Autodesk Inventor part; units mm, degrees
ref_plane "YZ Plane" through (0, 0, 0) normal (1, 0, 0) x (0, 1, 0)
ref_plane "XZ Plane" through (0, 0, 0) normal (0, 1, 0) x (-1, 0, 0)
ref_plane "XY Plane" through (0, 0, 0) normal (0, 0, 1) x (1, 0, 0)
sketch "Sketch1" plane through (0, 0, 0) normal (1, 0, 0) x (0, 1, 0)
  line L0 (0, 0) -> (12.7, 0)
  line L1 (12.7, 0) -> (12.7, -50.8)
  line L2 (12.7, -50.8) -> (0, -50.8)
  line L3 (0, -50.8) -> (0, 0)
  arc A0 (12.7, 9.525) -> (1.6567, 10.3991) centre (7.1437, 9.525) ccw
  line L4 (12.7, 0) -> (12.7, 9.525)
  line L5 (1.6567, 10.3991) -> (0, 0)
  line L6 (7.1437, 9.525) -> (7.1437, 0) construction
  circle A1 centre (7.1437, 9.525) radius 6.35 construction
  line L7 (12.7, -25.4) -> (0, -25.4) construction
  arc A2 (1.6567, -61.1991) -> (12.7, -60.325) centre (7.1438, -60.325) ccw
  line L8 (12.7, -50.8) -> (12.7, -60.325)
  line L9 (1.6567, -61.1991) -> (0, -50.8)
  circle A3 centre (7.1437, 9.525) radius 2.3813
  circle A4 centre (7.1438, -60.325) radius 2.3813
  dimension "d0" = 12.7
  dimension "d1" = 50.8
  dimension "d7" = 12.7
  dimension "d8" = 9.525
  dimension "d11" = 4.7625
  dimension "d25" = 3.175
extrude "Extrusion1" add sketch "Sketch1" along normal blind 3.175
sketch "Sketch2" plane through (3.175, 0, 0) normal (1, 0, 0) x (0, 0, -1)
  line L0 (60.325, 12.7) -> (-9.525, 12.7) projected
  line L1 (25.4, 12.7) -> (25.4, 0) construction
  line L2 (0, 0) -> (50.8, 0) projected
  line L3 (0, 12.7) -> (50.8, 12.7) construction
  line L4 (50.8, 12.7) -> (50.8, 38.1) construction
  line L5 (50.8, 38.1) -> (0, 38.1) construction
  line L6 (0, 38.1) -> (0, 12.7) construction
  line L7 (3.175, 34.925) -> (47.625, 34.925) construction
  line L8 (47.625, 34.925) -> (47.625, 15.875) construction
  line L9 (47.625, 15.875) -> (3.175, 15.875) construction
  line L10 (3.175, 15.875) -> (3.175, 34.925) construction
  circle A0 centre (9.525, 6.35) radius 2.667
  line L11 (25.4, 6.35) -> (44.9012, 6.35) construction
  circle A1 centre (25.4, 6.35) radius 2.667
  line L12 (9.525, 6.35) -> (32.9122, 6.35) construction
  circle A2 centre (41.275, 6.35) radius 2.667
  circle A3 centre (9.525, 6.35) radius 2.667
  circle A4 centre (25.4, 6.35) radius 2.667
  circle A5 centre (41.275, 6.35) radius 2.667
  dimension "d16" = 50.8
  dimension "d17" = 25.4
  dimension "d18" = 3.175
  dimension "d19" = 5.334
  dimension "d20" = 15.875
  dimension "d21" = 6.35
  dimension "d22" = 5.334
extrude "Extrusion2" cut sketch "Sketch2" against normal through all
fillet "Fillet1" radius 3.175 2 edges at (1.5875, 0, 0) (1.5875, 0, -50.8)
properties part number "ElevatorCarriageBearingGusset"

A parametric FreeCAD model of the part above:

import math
import FreeCAD as App
import Part
import Sketcher

V = App.Vector
Q = App.Units.Quantity


def edges_at(feature, points):
    """Names of the edges that pass closest to the given points."""
    edges = feature.Shape.Edges
    near = lambda p: min(range(len(edges)), key=lambda i: edges[i].distToShape(Part.Vertex(*p))[0])
    return sorted({f"Edge{near(p) + 1}" for p in points})

doc = App.newDocument("Part")
body = doc.addObject("PartDesign::Body", "Body")

# Sketch on YZ plane
sketch1 = doc.addObject("Sketcher::SketchObject", "Sketch")
body.addObject(sketch1)
sketch1.AttachmentSupport = (doc.YZ_Plane, [""])
sketch1.MapMode = "FlatFace"
sketch1.addGeometry(Part.LineSegment(V(1.6567, 10.3991, 0), V(0, 0, 0)), False)
sketch1.addGeometry(Part.LineSegment(V(0, 0, 0), V(0, -50.8, 0)), False)
sketch1.addGeometry(Part.LineSegment(V(0, -50.8, 0), V(1.6567, -61.1991, 0)), False)
sketch1.addGeometry(Part.ArcOfCircle(Part.Circle(V(7.1438, -60.325, 0), V(0, 0, 1), 5.556286), math.radians(-170.948783), math.radians(0)), False)
sketch1.addGeometry(Part.LineSegment(V(12.7, -60.325, 0), V(12.7, 9.525, 0)), False)
sketch1.addGeometry(Part.ArcOfCircle(Part.Circle(V(7.1437, 9.525, 0), V(0, 0, 1), 5.5563), math.radians(0), math.radians(170.94862)), False)
sketch1.addGeometry(Part.Circle(V(7.1437, 9.525, 0), V(0, 0, 1), 2.3813), False)
sketch1.addGeometry(Part.Circle(V(7.1438, -60.325, 0), V(0, 0, 1), 2.3813), False)
sketch1.addConstraint(Sketcher.Constraint("Coincident", 0, 2, 1, 1))
sketch1.addConstraint(Sketcher.Constraint("Coincident", 1, 2, 2, 1))
sketch1.addConstraint(Sketcher.Constraint("Tangent", 2, 2, 3, 1))
sketch1.addConstraint(Sketcher.Constraint("Tangent", 3, 2, 4, 1))
sketch1.addConstraint(Sketcher.Constraint("Tangent", 4, 2, 5, 1))
sketch1.addConstraint(Sketcher.Constraint("Tangent", 5, 2, 0, 1))
sketch1.addConstraint(Sketcher.Constraint("Vertical", 1))
sketch1.addConstraint(Sketcher.Constraint("Vertical", 4))
sketch1.addConstraint(Sketcher.Constraint("Coincident", 0, 2, -1, 1))
sketch1.addConstraint(Sketcher.Constraint("Coincident", 6, 3, 5, 3))
sketch1.addConstraint(Sketcher.Constraint("Coincident", 7, 3, 3, 3))
sketch1.addConstraint(Sketcher.Constraint("Equal", 3, 5))
sketch1.addConstraint(Sketcher.Constraint("Equal", 6, 7))
sketch1.addConstraint(Sketcher.Constraint("Vertical", 2, 2, 5, 2))
sketch1.addConstraint(Sketcher.Constraint("DistanceY", 1, 2, 1, 1, Q("2 in")))
sketch1.addConstraint(Sketcher.Constraint("Diameter", 6, Q("0.1875 in")))
sketch1.addConstraint(Sketcher.Constraint("DistanceX", -1, 1, 3, 2, Q("0.5 in")))
sketch1.addConstraint(Sketcher.Constraint("DistanceY", -1, 1, 5, 3, Q("0.375 in")))
sketch1.addConstraint(Sketcher.Constraint("Radius", 3, Q("0.218752 in")))
pad1 = doc.addObject("PartDesign::Pad", "Pad")
body.addObject(pad1)
pad1.Profile = sketch1
pad1.Length = Q("0.125 in")

# Sketch on YZ plane
sketch2 = doc.addObject("Sketcher::SketchObject", "Sketch001")
body.addObject(sketch2)
sketch2.AttachmentSupport = (doc.YZ_Plane, [""])
sketch2.MapMode = "FlatFace"
sketch2.AttachmentOffset = App.Placement(V(0, 0, 0.125 * 25.4), App.Rotation())
sketch2.addGeometry(Part.Circle(V(6.35, -9.525, 0), V(0, 0, 1), 2.667), False)
sketch2.addGeometry(Part.Circle(V(6.35, -25.4, 0), V(0, 0, 1), 2.667), False)
sketch2.addGeometry(Part.Circle(V(6.35, -41.275, 0), V(0, 0, 1), 2.667), False)
sketch2.addConstraint(Sketcher.Constraint("Equal", 0, 1))
sketch2.addConstraint(Sketcher.Constraint("Equal", 1, 2))
sketch2.addConstraint(Sketcher.Constraint("Vertical", 0, 3, 1, 3))
sketch2.addConstraint(Sketcher.Constraint("Vertical", 1, 3, 2, 3))
sketch2.addConstraint(Sketcher.Constraint("Diameter", 0, Q("0.21 in")))
sketch2.addConstraint(Sketcher.Constraint("DistanceY", 1, 3, -1, 1, Q("1 in")))
sketch2.addConstraint(Sketcher.Constraint("DistanceX", -1, 1, 0, 3, Q("0.25 in")))
sketch2.addConstraint(Sketcher.Constraint("DistanceY", 1, 3, 0, 3, Q("0.625 in")))
sketch2.addConstraint(Sketcher.Constraint("DistanceY", 2, 3, 1, 3, Q("0.625 in")))
pocket1 = doc.addObject("PartDesign::Pocket", "Pocket")
body.addObject(pocket1)
pocket1.Profile = sketch2
pocket1.Type = "ThroughAll"
doc.recompute()

fillet = doc.addObject("PartDesign::Fillet", "Fillet")
body.addObject(fillet)
fillet.Base = (pocket1, edges_at(pocket1, [(1.587, 0, 0), (1.587, 0, -50.8)]))
fillet.Radius = Q("0.125 in")

doc.recompute()
